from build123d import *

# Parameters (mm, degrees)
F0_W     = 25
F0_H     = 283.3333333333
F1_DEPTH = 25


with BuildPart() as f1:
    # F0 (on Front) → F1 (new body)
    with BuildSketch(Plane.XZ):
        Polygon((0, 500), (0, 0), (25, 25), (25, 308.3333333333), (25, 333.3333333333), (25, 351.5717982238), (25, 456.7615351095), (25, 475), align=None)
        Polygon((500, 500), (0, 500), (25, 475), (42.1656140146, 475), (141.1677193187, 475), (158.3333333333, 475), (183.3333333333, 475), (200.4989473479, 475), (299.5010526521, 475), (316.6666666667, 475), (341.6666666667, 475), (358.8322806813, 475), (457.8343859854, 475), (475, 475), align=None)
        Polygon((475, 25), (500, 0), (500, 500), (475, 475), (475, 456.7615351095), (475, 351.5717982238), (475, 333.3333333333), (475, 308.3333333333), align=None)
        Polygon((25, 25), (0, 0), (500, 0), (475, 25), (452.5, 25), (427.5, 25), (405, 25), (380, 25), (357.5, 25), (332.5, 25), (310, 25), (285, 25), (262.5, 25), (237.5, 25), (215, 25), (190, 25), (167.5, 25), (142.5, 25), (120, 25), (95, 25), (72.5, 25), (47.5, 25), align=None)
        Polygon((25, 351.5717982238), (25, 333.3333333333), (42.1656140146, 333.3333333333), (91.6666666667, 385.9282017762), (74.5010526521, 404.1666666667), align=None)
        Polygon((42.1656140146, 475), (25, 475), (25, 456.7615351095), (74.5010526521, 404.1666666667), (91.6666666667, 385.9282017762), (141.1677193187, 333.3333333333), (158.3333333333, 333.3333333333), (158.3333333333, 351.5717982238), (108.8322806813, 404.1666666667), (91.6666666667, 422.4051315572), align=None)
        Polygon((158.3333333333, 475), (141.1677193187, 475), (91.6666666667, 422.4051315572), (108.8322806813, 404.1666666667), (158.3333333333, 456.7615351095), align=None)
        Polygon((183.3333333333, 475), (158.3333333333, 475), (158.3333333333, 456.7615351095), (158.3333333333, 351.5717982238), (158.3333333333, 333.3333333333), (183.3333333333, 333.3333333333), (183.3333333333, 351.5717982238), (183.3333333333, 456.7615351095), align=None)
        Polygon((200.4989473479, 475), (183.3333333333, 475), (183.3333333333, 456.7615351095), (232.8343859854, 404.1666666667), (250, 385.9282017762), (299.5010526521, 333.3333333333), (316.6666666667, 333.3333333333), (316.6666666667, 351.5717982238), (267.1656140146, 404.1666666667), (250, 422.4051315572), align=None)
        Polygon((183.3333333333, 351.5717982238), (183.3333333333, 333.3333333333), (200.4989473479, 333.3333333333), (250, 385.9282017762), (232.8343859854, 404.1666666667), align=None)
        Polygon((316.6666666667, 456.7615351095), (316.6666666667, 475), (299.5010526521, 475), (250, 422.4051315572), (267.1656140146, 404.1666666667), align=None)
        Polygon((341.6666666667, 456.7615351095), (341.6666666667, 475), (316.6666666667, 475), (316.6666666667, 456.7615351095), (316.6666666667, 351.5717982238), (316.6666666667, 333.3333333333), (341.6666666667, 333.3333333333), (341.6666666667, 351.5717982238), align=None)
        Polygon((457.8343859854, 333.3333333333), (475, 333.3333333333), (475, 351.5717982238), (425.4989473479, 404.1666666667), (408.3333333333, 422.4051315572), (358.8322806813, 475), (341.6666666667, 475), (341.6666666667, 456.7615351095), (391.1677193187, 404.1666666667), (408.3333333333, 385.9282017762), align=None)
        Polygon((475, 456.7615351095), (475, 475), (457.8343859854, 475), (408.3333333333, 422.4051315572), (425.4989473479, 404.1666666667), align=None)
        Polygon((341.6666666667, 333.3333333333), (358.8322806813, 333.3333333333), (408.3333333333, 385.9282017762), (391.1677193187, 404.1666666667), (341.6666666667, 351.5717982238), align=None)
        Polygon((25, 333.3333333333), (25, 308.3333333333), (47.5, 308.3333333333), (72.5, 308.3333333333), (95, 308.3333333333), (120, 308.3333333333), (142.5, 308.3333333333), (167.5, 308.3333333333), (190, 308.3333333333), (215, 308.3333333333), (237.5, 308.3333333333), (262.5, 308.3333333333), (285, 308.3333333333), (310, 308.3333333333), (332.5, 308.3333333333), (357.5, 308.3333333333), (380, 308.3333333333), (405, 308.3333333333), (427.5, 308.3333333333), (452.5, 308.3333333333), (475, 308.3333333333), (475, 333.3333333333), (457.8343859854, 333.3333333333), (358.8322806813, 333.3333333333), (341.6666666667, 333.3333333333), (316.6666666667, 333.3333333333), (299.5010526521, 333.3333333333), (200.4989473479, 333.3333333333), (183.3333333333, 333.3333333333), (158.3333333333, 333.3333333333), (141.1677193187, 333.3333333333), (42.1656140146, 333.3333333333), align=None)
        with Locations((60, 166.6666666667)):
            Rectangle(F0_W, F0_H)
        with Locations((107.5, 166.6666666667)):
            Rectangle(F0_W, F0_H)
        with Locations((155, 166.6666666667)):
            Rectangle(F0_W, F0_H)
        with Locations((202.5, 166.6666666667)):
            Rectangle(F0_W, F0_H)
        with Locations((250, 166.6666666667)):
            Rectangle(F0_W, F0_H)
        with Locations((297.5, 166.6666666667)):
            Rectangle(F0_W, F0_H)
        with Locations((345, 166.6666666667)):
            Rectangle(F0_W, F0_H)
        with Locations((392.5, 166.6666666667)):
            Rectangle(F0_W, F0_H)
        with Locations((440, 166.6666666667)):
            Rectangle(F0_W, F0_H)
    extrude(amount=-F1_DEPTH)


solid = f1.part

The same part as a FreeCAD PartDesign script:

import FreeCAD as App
import Part
import Sketcher

doc = App.newDocument("Part")
body = doc.addObject("PartDesign::Body", "Body")

# Sketch on XZ plane
sketch1 = body.newObject("Sketcher::SketchObject", "Sketch")
sketch1.AttachmentSupport = (doc.getObject("XZ_Plane"), [""])
sketch1.MapMode = "FlatFace"
sketch1.addGeometry([
    Part.LineSegment(App.Vector(0, 500, 0), App.Vector(0, 0, 0)),  # 0
    Part.LineSegment(App.Vector(0, 0, 0), App.Vector(500, 0, 0)),  # 1
    Part.LineSegment(App.Vector(500, 0, 0), App.Vector(500, 500, 0)),  # 2
    Part.LineSegment(App.Vector(500, 500, 0), App.Vector(0, 500, 0)),  # 3
    Part.LineSegment(App.Vector(25, 25, 0), App.Vector(25, 308, 0)),  # 4
    Part.LineSegment(App.Vector(25, 308, 0), App.Vector(48, 308, 0)),  # 5
    Part.LineSegment(App.Vector(48, 308, 0), App.Vector(48, 25, 0)),  # 6
    Part.LineSegment(App.Vector(48, 25, 0), App.Vector(25, 25, 0)),  # 7
    Part.LineSegment(App.Vector(72, 308, 0), App.Vector(95, 308, 0)),  # 8
    Part.LineSegment(App.Vector(95, 308, 0), App.Vector(95, 25, 0)),  # 9
    Part.LineSegment(App.Vector(95, 25, 0), App.Vector(72, 25, 0)),  # 10
    Part.LineSegment(App.Vector(72, 25, 0), App.Vector(72, 308, 0)),  # 11
    Part.LineSegment(App.Vector(120, 308, 0), App.Vector(142, 308, 0)),  # 12
    Part.LineSegment(App.Vector(142, 308, 0), App.Vector(142, 25, 0)),  # 13
    Part.LineSegment(App.Vector(142, 25, 0), App.Vector(120, 25, 0)),  # 14
    Part.LineSegment(App.Vector(120, 25, 0), App.Vector(120, 308, 0)),  # 15
    Part.LineSegment(App.Vector(168, 308, 0), App.Vector(190, 308, 0)),  # 16
    Part.LineSegment(App.Vector(190, 308, 0), App.Vector(190, 25, 0)),  # 17
    Part.LineSegment(App.Vector(190, 25, 0), App.Vector(168, 25, 0)),  # 18
    Part.LineSegment(App.Vector(168, 25, 0), App.Vector(168, 308, 0)),  # 19
    Part.LineSegment(App.Vector(215, 308, 0), App.Vector(238, 308, 0)),  # 20
    Part.LineSegment(App.Vector(238, 308, 0), App.Vector(238, 25, 0)),  # 21
    Part.LineSegment(App.Vector(238, 25, 0), App.Vector(215, 25, 0)),  # 22
    Part.LineSegment(App.Vector(215, 25, 0), App.Vector(215, 308, 0)),  # 23
    Part.LineSegment(App.Vector(262, 308, 0), App.Vector(285, 308, 0)),  # 24
    Part.LineSegment(App.Vector(285, 308, 0), App.Vector(285, 25, 0)),  # 25
    Part.LineSegment(App.Vector(285, 25, 0), App.Vector(262, 25, 0)),  # 26
    Part.LineSegment(App.Vector(262, 25, 0), App.Vector(262, 308, 0)),  # 27
    Part.LineSegment(App.Vector(310, 308, 0), App.Vector(332, 308, 0)),  # 28
    Part.LineSegment(App.Vector(332, 308, 0), App.Vector(332, 25, 0)),  # 29
    Part.LineSegment(App.Vector(332, 25, 0), App.Vector(310, 25, 0)),  # 30
    Part.LineSegment(App.Vector(310, 25, 0), App.Vector(310, 308, 0)),  # 31
    Part.LineSegment(App.Vector(358, 308, 0), App.Vector(380, 308, 0)),  # 32
    Part.LineSegment(App.Vector(380, 308, 0), App.Vector(380, 25, 0)),  # 33
    Part.LineSegment(App.Vector(380, 25, 0), App.Vector(358, 25, 0)),  # 34
    Part.LineSegment(App.Vector(358, 25, 0), App.Vector(358, 308, 0)),  # 35
    Part.LineSegment(App.Vector(405, 308, 0), App.Vector(428, 308, 0)),  # 36
    Part.LineSegment(App.Vector(428, 308, 0), App.Vector(428, 25, 0)),  # 37
    Part.LineSegment(App.Vector(428, 25, 0), App.Vector(405, 25, 0)),  # 38
    Part.LineSegment(App.Vector(405, 25, 0), App.Vector(405, 308, 0)),  # 39
    Part.LineSegment(App.Vector(452, 308, 0), App.Vector(475, 308, 0)),  # 40
    Part.LineSegment(App.Vector(475, 308, 0), App.Vector(475, 25, 0)),  # 41
    Part.LineSegment(App.Vector(475, 25, 0), App.Vector(452, 25, 0)),  # 42
    Part.LineSegment(App.Vector(452, 25, 0), App.Vector(452, 308, 0)),  # 43
    Part.LineSegment(App.Vector(42, 333, 0), App.Vector(92, 386, 0)),  # 44
    Part.LineSegment(App.Vector(92, 386, 0), App.Vector(141, 333, 0)),  # 45
    Part.LineSegment(App.Vector(141, 333, 0), App.Vector(42, 333, 0)),  # 46
    Part.LineSegment(App.Vector(200, 333, 0), App.Vector(250, 386, 0)),  # 47
    Part.LineSegment(App.Vector(250, 386, 0), App.Vector(300, 333, 0)),  # 48
    Part.LineSegment(App.Vector(300, 333, 0), App.Vector(200, 333, 0)),  # 49
    Part.LineSegment(App.Vector(359, 333, 0), App.Vector(408, 386, 0)),  # 50
    Part.LineSegment(App.Vector(408, 386, 0), App.Vector(458, 333, 0)),  # 51
    Part.LineSegment(App.Vector(458, 333, 0), App.Vector(359, 333, 0)),  # 52
    Part.LineSegment(App.Vector(342, 352, 0), App.Vector(342, 457, 0)),  # 53
    Part.LineSegment(App.Vector(342, 457, 0), App.Vector(391, 404, 0)),  # 54
    Part.LineSegment(App.Vector(391, 404, 0), App.Vector(342, 352, 0)),  # 55
    Part.LineSegment(App.Vector(359, 475, 0), App.Vector(458, 475, 0)),  # 56
    Part.LineSegment(App.Vector(458, 475, 0), App.Vector(408, 422, 0)),  # 57
    Part.LineSegment(App.Vector(408, 422, 0), App.Vector(359, 475, 0)),  # 58
    Part.LineSegment(App.Vector(475, 457, 0), App.Vector(475, 352, 0)),  # 59
    Part.LineSegment(App.Vector(475, 352, 0), App.Vector(425, 404, 0)),  # 60
    Part.LineSegment(App.Vector(425, 404, 0), App.Vector(475, 457, 0)),  # 61
    Part.LineSegment(App.Vector(317, 352, 0), App.Vector(267, 404, 0)),  # 62
    Part.LineSegment(App.Vector(267, 404, 0), App.Vector(317, 457, 0)),  # 63
    Part.LineSegment(App.Vector(317, 457, 0), App.Vector(317, 352, 0)),  # 64
    Part.LineSegment(App.Vector(250, 422, 0), App.Vector(200, 475, 0)),  # 65
    Part.LineSegment(App.Vector(200, 475, 0), App.Vector(300, 475, 0)),  # 66
    Part.LineSegment(App.Vector(300, 475, 0), App.Vector(250, 422, 0)),  # 67
    Part.LineSegment(App.Vector(183, 352, 0), App.Vector(183, 457, 0)),  # 68
    Part.LineSegment(App.Vector(183, 457, 0), App.Vector(233, 404, 0)),  # 69
    Part.LineSegment(App.Vector(233, 404, 0), App.Vector(183, 352, 0)),  # 70
    Part.LineSegment(App.Vector(158, 352, 0), App.Vector(109, 404, 0)),  # 71
    Part.LineSegment(App.Vector(109, 404, 0), App.Vector(158, 457, 0)),  # 72
    Part.LineSegment(App.Vector(158, 457, 0), App.Vector(158, 352, 0)),  # 73
    Part.LineSegment(App.Vector(92, 422, 0), App.Vector(42, 475, 0)),  # 74
    Part.LineSegment(App.Vector(42, 475, 0), App.Vector(141, 475, 0)),  # 75
    Part.LineSegment(App.Vector(141, 475, 0), App.Vector(92, 422, 0)),  # 76
    Part.LineSegment(App.Vector(75, 404, 0), App.Vector(25, 352, 0)),  # 77
    Part.LineSegment(App.Vector(25, 352, 0), App.Vector(25, 457, 0)),  # 78
    Part.LineSegment(App.Vector(25, 457, 0), App.Vector(75, 404, 0)),  # 79
], False)
sketch1.addConstraint([
    Sketcher.Constraint("Coincident", 0, 2, 1, 1),
    Sketcher.Constraint("Coincident", 1, 2, 2, 1),
    Sketcher.Constraint("Coincident", 2, 2, 3, 1),
    Sketcher.Constraint("Coincident", 3, 2, 0, 1),
    Sketcher.Constraint("Coincident", 4, 2, 5, 1),
    Sketcher.Constraint("Coincident", 5, 2, 6, 1),
    Sketcher.Constraint("Coincident", 6, 2, 7, 1),
    Sketcher.Constraint("Coincident", 7, 2, 4, 1),
    Sketcher.Constraint("Coincident", 8, 2, 9, 1),
    Sketcher.Constraint("Coincident", 9, 2, 10, 1),
    Sketcher.Constraint("Coincident", 10, 2, 11, 1),
    Sketcher.Constraint("Coincident", 11, 2, 8, 1),
    Sketcher.Constraint("Coincident", 12, 2, 13, 1),
    Sketcher.Constraint("Coincident", 13, 2, 14, 1),
    Sketcher.Constraint("Coincident", 14, 2, 15, 1),
    Sketcher.Constraint("Coincident", 15, 2, 12, 1),
    Sketcher.Constraint("Coincident", 16, 2, 17, 1),
    Sketcher.Constraint("Coincident", 17, 2, 18, 1),
    Sketcher.Constraint("Coincident", 18, 2, 19, 1),
    Sketcher.Constraint("Coincident", 19, 2, 16, 1),
    Sketcher.Constraint("Coincident", 20, 2, 21, 1),
    Sketcher.Constraint("Coincident", 21, 2, 22, 1),
    Sketcher.Constraint("Coincident", 22, 2, 23, 1),
    Sketcher.Constraint("Coincident", 23, 2, 20, 1),
    Sketcher.Constraint("Coincident", 24, 2, 25, 1),
    Sketcher.Constraint("Coincident", 25, 2, 26, 1),
    Sketcher.Constraint("Coincident", 26, 2, 27, 1),
    Sketcher.Constraint("Coincident", 27, 2, 24, 1),
    Sketcher.Constraint("Coincident", 28, 2, 29, 1),
    Sketcher.Constraint("Coincident", 29, 2, 30, 1),
    Sketcher.Constraint("Coincident", 30, 2, 31, 1),
    Sketcher.Constraint("Coincident", 31, 2, 28, 1),
    Sketcher.Constraint("Coincident", 32, 2, 33, 1),
    Sketcher.Constraint("Coincident", 33, 2, 34, 1),
    Sketcher.Constraint("Coincident", 34, 2, 35, 1),
    Sketcher.Constraint("Coincident", 35, 2, 32, 1),
    Sketcher.Constraint("Coincident", 36, 2, 37, 1),
    Sketcher.Constraint("Coincident", 37, 2, 38, 1),
    Sketcher.Constraint("Coincident", 38, 2, 39, 1),
    Sketcher.Constraint("Coincident", 39, 2, 36, 1),
    Sketcher.Constraint("Coincident", 40, 2, 41, 1),
    Sketcher.Constraint("Coincident", 41, 2, 42, 1),
    Sketcher.Constraint("Coincident", 42, 2, 43, 1),
    Sketcher.Constraint("Coincident", 43, 2, 40, 1),
    Sketcher.Constraint("Coincident", 44, 2, 45, 1),
    Sketcher.Constraint("Coincident", 45, 2, 46, 1),
    Sketcher.Constraint("Coincident", 46, 2, 44, 1),
    Sketcher.Constraint("Coincident", 47, 2, 48, 1),
    Sketcher.Constraint("Coincident", 48, 2, 49, 1),
    Sketcher.Constraint("Coincident", 49, 2, 47, 1),
    Sketcher.Constraint("Coincident", 50, 2, 51, 1),
    Sketcher.Constraint("Coincident", 51, 2, 52, 1),
    Sketcher.Constraint("Coincident", 52, 2, 50, 1),
    Sketcher.Constraint("Coincident", 53, 2, 54, 1),
    Sketcher.Constraint("Coincident", 54, 2, 55, 1),
    Sketcher.Constraint("Coincident", 55, 2, 53, 1),
    Sketcher.Constraint("Coincident", 56, 2, 57, 1),
    Sketcher.Constraint("Coincident", 57, 2, 58, 1),
    Sketcher.Constraint("Coincident", 58, 2, 56, 1),
    Sketcher.Constraint("Coincident", 59, 2, 60, 1),
    Sketcher.Constraint("Coincident", 60, 2, 61, 1),
    Sketcher.Constraint("Coincident", 61, 2, 59, 1),
    Sketcher.Constraint("Coincident", 62, 2, 63, 1),
    Sketcher.Constraint("Coincident", 63, 2, 64, 1),
    Sketcher.Constraint("Coincident", 64, 2, 62, 1),
    Sketcher.Constraint("Coincident", 65, 2, 66, 1),
    Sketcher.Constraint("Coincident", 66, 2, 67, 1),
    Sketcher.Constraint("Coincident", 67, 2, 65, 1),
    Sketcher.Constraint("Coincident", 68, 2, 69, 1),
    Sketcher.Constraint("Coincident", 69, 2, 70, 1),
    Sketcher.Constraint("Coincident", 70, 2, 68, 1),
    Sketcher.Constraint("Coincident", 71, 2, 72, 1),
    Sketcher.Constraint("Coincident", 72, 2, 73, 1),
    Sketcher.Constraint("Coincident", 73, 2, 71, 1),
    Sketcher.Constraint("Coincident", 74, 2, 75, 1),
    Sketcher.Constraint("Coincident", 75, 2, 76, 1),
    Sketcher.Constraint("Coincident", 76, 2, 74, 1),
    Sketcher.Constraint("Coincident", 77, 2, 78, 1),
    Sketcher.Constraint("Coincident", 78, 2, 79, 1),
    Sketcher.Constraint("Coincident", 79, 2, 77, 1),
    Sketcher.Constraint("Vertical", 0),
    Sketcher.Constraint("Horizontal", 1),
    Sketcher.Constraint("Vertical", 2),
    Sketcher.Constraint("Horizontal", 3),
    Sketcher.Constraint("Vertical", 4),
    Sketcher.Constraint("Horizontal", 5),
    Sketcher.Constraint("Vertical", 6),
    Sketcher.Constraint("Horizontal", 7),
    Sketcher.Constraint("Horizontal", 8),
    Sketcher.Constraint("Vertical", 9),
    Sketcher.Constraint("Horizontal", 10),
    Sketcher.Constraint("Vertical", 11),
    Sketcher.Constraint("Horizontal", 12),
    Sketcher.Constraint("Vertical", 13),
    Sketcher.Constraint("Horizontal", 14),
    Sketcher.Constraint("Vertical", 15),
    Sketcher.Constraint("Horizontal", 16),
    Sketcher.Constraint("Vertical", 17),
    Sketcher.Constraint("Horizontal", 18),
    Sketcher.Constraint("Vertical", 19),
    Sketcher.Constraint("Horizontal", 20),
    Sketcher.Constraint("Vertical", 21),
    Sketcher.Constraint("Horizontal", 22),
    Sketcher.Constraint("Vertical", 23),
    Sketcher.Constraint("Horizontal", 24),
    Sketcher.Constraint("Vertical", 25),
    Sketcher.Constraint("Horizontal", 26),
    Sketcher.Constraint("Vertical", 27),
    Sketcher.Constraint("Horizontal", 28),
    Sketcher.Constraint("Vertical", 29),
    Sketcher.Constraint("Horizontal", 30),
    Sketcher.Constraint("Vertical", 31),
    Sketcher.Constraint("Horizontal", 32),
    Sketcher.Constraint("Vertical", 33),
    Sketcher.Constraint("Horizontal", 34),
    Sketcher.Constraint("Vertical", 35),
    Sketcher.Constraint("Horizontal", 36),
    Sketcher.Constraint("Vertical", 37),
    Sketcher.Constraint("Horizontal", 38),
    Sketcher.Constraint("Vertical", 39),
    Sketcher.Constraint("Horizontal", 40),
    Sketcher.Constraint("Vertical", 41),
    Sketcher.Constraint("Horizontal", 42),
    Sketcher.Constraint("Vertical", 43),
    Sketcher.Constraint("Horizontal", 46),
    Sketcher.Constraint("Horizontal", 49),
    Sketcher.Constraint("Horizontal", 52),
    Sketcher.Constraint("Vertical", 53),
    Sketcher.Constraint("Horizontal", 56),
    Sketcher.Constraint("Vertical", 59),
    Sketcher.Constraint("Vertical", 64),
    Sketcher.Constraint("Horizontal", 66),
    Sketcher.Constraint("Vertical", 68),
    Sketcher.Constraint("Vertical", 73),
    Sketcher.Constraint("Horizontal", 75),
    Sketcher.Constraint("Vertical", 78),
    Sketcher.Constraint("Coincident", 0, 2, -1, 1),
    Sketcher.Constraint("Parallel", 44, 47),
    Sketcher.Constraint("Parallel", 45, 48),
    Sketcher.Constraint("Parallel", 47, 50),
    Sketcher.Constraint("Parallel", 48, 51),
    Sketcher.Constraint("Parallel", 51, 54),
    Sketcher.Constraint("Parallel", 50, 55),
    Sketcher.Constraint("Parallel", 55, 57),
    Sketcher.Constraint("Parallel", 54, 58),
    Sketcher.Constraint("Parallel", 58, 60),
    Sketcher.Constraint("Parallel", 57, 61),
    Sketcher.Constraint("Parallel", 60, 62),
    Sketcher.Constraint("Parallel", 61, 63),
    Sketcher.Constraint("Parallel", 62, 65),
    Sketcher.Constraint("Parallel", 63, 67),
    Sketcher.Constraint("Parallel", 65, 69),
    Sketcher.Constraint("Parallel", 67, 70),
    Sketcher.Constraint("Parallel", 69, 71),
    Sketcher.Constraint("Parallel", 70, 72),
    Sketcher.Constraint("Parallel", 71, 74),
    Sketcher.Constraint("Parallel", 72, 76),
    Sketcher.Constraint("Parallel", 76, 77),
    Sketcher.Constraint("Parallel", 74, 79),
    Sketcher.Constraint("Horizontal", 5, 2, 8, 2),
    Sketcher.Constraint("Horizontal", 7, 2, 9, 2),
    Sketcher.Constraint("Horizontal", 11, 2, 12, 2),
    Sketcher.Constraint("Horizontal", 10, 2, 13, 2),
    Sketcher.Constraint("Horizontal", 15, 2, 16, 2),
    Sketcher.Constraint("Horizontal", 14, 2, 17, 2),
    Sketcher.Constraint("Horizontal", 19, 2, 20, 2),
    Sketcher.Constraint("Horizontal", 18, 2, 21, 2),
    Sketcher.Constraint("Horizontal", 23, 2, 24, 2),
    Sketcher.Constraint("Horizontal", 22, 2, 25, 2),
    Sketcher.Constraint("Horizontal", 27, 2, 28, 2),
    Sketcher.Constraint("Horizontal", 26, 2, 29, 2),
    Sketcher.Constraint("Horizontal", 31, 2, 32, 2),
    Sketcher.Constraint("Horizontal", 30, 2, 33, 2),
    Sketcher.Constraint("Horizontal", 35, 2, 36, 2),
    Sketcher.Constraint("Horizontal", 34, 2, 37, 2),
    Sketcher.Constraint("Horizontal", 39, 2, 40, 2),
    Sketcher.Constraint("Horizontal", 38, 2, 41, 2),
    Sketcher.Constraint("Horizontal", 44, 2, 47, 2),
    Sketcher.Constraint("Horizontal", 46, 2, 48, 2),
    Sketcher.Constraint("Horizontal", 47, 2, 50, 2),
    Sketcher.Constraint("Horizontal", 49, 2, 51, 2),
    Sketcher.Constraint("Horizontal", 55, 2, 59, 2),
    Sketcher.Constraint("Horizontal", 54, 2, 60, 2),
    Sketcher.Constraint("Horizontal", 53, 2, 61, 2),
    Sketcher.Constraint("Horizontal", 60, 2, 62, 2),
    Sketcher.Constraint("Horizontal", 61, 2, 63, 2),
    Sketcher.Constraint("Horizontal", 58, 2, 65, 2),
    Sketcher.Constraint("Horizontal", 57, 2, 67, 2),
    Sketcher.Constraint("Horizontal", 63, 2, 68, 2),
    Sketcher.Constraint("Horizontal", 62, 2, 69, 2),
    Sketcher.Constraint("Horizontal", 69, 2, 71, 2),
    Sketcher.Constraint("Horizontal", 68, 2, 72, 2),
    Sketcher.Constraint("Horizontal", 66, 2, 74, 2),
    Sketcher.Constraint("Horizontal", 67, 2, 76, 2),
    Sketcher.Constraint("Horizontal", 73, 2, 77, 2),
    Sketcher.Constraint("Horizontal", 72, 2, 78, 2),
    Sketcher.Constraint("Vertical", 51, 2, 56, 2),
    Sketcher.Constraint("Vertical", 50, 2, 57, 2),
    Sketcher.Constraint("Vertical", 41, 2, 59, 2),
    Sketcher.Constraint("Vertical", 49, 2, 65, 2),
    Sketcher.Constraint("Vertical", 46, 2, 74, 2),
    Sketcher.Constraint("Vertical", 7, 2, 77, 2),
    Sketcher.Constraint("Equal", 7, 8),
    Sketcher.Constraint("Equal", 10, 12),
    Sketcher.Constraint("Equal", 14, 16),
    Sketcher.Constraint("Equal", 18, 20),
    Sketcher.Constraint("Equal", 22, 24),
    Sketcher.Constraint("Equal", 26, 28),
    Sketcher.Constraint("Equal", 30, 32),
    Sketcher.Constraint("Equal", 34, 36),
    Sketcher.Constraint("Equal", 38, 40),
    Sketcher.Constraint("Equal", 3, 0),
    Sketcher.Constraint("Equal", 51, 54),
    Sketcher.Constraint("DistanceX", 1, 1, 1, 2, 500.0),
    Sketcher.Constraint("DistanceX", 5, 1, 5, 2, 22.5),
    Sketcher.Constraint("DistanceX", -1, 1, 4, 2, 25.0),
    Sketcher.Constraint("DistanceY", -1, 1, 6, 2, 25.0),
    Sketcher.Constraint("DistanceX", -1, 1, 8, 2, 95.0),
    Sketcher.Constraint("DistanceX", -1, 1, 14, 2, 120.0),
    Sketcher.Constraint("DistanceX", -1, 1, 16, 2, 190.0),
    Sketcher.Constraint("DistanceX", -1, 1, 22, 2, 215.0),
    Sketcher.Constraint("DistanceX", -1, 1, 24, 2, 285.0),
    Sketcher.Constraint("DistanceX", -1, 1, 30, 2, 310.0),
    Sketcher.Constraint("DistanceX", -1, 1, 32, 2, 380.0),
    Sketcher.Constraint("DistanceX", -1, 1, 38, 2, 405.0),
    Sketcher.Constraint("DistanceX", -1, 1, 40, 2, 475.0),
    Sketcher.Constraint("DistanceX", -1, 1, 47, 2, 250.0),
    Sketcher.Constraint("DistanceY", -1, 1, 56, 2, 475.0),
    Sketcher.Constraint("DistanceY", -1, 1, 44, 2, 385.928202),
    Sketcher.Constraint("DistanceY", -1, 1, 55, 2, 351.571798),
    Sketcher.Constraint("DistanceX", 46, 2, 46, 1, 99.002105),
    Sketcher.Constraint("DistanceY", 4, 1, 4, 2, 283.333333),
    Sketcher.Constraint("DistanceY", 53, 1, 53, 2, 105.189737),
    Sketcher.Constraint("DistanceX", -1, 1, 45, 2, 141.167719),
    Sketcher.Constraint("DistanceX", -1, 1, 52, 2, 358.832281),
    Sketcher.Constraint("DistanceX", -1, 1, 54, 2, 391.167719),
    Sketcher.Constraint("DistanceX", -1, 1, 71, 2, 108.832281),
    Sketcher.Constraint("DistanceX", -1, 1, 62, 2, 267.165614),
    Sketcher.Constraint("DistanceX", -1, 1, 68, 2, 183.333333),
])
pad1 = body.newObject("PartDesign::Pad", "Pad")
pad1.Profile = sketch1
pad1.Length = 25
pad1.Reversed = True

doc.recompute()
